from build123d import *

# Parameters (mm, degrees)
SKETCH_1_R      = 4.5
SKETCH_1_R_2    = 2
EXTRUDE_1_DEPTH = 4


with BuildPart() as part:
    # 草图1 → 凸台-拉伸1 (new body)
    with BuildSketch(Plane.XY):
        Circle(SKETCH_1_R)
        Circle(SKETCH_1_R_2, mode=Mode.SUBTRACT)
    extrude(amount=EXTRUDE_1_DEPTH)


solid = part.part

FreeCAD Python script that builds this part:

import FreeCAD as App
import Part
import Sketcher
from FreeCAD import Vector
Q = App.Units.Quantity

doc = App.newDocument("Part")
body = doc.addObject("PartDesign::Body", "Body")

# Sketch on XY plane
sketch1 = doc.addObject("Sketcher::SketchObject", "Sketch")
body.addObject(sketch1)
sketch1.AttachmentSupport = (doc.XY_Plane, [""])
sketch1.MapMode = "FlatFace"
sketch1.addGeometry(Part.Circle(Vector(0, 0, 0), Vector(0, 0, 1), 4.5), False)
sketch1.addGeometry(Part.Circle(Vector(0, 0, 0), Vector(0, 0, 1), 2), False)
sketch1.addConstraint(Sketcher.Constraint("Coincident", 0, 3, -1, 1))
sketch1.addConstraint(Sketcher.Constraint("Coincident", 1, 3, -1, 1))
sketch1.addConstraint(Sketcher.Constraint("Diameter", 0, Q("9 mm")))
sketch1.addConstraint(Sketcher.Constraint("Diameter", 1, Q("4 mm")))
pad1 = doc.addObject("PartDesign::Pad", "Pad")
body.addObject(pad1)
pad1.Profile = sketch1
pad1.Length = 4

doc.recompute()
